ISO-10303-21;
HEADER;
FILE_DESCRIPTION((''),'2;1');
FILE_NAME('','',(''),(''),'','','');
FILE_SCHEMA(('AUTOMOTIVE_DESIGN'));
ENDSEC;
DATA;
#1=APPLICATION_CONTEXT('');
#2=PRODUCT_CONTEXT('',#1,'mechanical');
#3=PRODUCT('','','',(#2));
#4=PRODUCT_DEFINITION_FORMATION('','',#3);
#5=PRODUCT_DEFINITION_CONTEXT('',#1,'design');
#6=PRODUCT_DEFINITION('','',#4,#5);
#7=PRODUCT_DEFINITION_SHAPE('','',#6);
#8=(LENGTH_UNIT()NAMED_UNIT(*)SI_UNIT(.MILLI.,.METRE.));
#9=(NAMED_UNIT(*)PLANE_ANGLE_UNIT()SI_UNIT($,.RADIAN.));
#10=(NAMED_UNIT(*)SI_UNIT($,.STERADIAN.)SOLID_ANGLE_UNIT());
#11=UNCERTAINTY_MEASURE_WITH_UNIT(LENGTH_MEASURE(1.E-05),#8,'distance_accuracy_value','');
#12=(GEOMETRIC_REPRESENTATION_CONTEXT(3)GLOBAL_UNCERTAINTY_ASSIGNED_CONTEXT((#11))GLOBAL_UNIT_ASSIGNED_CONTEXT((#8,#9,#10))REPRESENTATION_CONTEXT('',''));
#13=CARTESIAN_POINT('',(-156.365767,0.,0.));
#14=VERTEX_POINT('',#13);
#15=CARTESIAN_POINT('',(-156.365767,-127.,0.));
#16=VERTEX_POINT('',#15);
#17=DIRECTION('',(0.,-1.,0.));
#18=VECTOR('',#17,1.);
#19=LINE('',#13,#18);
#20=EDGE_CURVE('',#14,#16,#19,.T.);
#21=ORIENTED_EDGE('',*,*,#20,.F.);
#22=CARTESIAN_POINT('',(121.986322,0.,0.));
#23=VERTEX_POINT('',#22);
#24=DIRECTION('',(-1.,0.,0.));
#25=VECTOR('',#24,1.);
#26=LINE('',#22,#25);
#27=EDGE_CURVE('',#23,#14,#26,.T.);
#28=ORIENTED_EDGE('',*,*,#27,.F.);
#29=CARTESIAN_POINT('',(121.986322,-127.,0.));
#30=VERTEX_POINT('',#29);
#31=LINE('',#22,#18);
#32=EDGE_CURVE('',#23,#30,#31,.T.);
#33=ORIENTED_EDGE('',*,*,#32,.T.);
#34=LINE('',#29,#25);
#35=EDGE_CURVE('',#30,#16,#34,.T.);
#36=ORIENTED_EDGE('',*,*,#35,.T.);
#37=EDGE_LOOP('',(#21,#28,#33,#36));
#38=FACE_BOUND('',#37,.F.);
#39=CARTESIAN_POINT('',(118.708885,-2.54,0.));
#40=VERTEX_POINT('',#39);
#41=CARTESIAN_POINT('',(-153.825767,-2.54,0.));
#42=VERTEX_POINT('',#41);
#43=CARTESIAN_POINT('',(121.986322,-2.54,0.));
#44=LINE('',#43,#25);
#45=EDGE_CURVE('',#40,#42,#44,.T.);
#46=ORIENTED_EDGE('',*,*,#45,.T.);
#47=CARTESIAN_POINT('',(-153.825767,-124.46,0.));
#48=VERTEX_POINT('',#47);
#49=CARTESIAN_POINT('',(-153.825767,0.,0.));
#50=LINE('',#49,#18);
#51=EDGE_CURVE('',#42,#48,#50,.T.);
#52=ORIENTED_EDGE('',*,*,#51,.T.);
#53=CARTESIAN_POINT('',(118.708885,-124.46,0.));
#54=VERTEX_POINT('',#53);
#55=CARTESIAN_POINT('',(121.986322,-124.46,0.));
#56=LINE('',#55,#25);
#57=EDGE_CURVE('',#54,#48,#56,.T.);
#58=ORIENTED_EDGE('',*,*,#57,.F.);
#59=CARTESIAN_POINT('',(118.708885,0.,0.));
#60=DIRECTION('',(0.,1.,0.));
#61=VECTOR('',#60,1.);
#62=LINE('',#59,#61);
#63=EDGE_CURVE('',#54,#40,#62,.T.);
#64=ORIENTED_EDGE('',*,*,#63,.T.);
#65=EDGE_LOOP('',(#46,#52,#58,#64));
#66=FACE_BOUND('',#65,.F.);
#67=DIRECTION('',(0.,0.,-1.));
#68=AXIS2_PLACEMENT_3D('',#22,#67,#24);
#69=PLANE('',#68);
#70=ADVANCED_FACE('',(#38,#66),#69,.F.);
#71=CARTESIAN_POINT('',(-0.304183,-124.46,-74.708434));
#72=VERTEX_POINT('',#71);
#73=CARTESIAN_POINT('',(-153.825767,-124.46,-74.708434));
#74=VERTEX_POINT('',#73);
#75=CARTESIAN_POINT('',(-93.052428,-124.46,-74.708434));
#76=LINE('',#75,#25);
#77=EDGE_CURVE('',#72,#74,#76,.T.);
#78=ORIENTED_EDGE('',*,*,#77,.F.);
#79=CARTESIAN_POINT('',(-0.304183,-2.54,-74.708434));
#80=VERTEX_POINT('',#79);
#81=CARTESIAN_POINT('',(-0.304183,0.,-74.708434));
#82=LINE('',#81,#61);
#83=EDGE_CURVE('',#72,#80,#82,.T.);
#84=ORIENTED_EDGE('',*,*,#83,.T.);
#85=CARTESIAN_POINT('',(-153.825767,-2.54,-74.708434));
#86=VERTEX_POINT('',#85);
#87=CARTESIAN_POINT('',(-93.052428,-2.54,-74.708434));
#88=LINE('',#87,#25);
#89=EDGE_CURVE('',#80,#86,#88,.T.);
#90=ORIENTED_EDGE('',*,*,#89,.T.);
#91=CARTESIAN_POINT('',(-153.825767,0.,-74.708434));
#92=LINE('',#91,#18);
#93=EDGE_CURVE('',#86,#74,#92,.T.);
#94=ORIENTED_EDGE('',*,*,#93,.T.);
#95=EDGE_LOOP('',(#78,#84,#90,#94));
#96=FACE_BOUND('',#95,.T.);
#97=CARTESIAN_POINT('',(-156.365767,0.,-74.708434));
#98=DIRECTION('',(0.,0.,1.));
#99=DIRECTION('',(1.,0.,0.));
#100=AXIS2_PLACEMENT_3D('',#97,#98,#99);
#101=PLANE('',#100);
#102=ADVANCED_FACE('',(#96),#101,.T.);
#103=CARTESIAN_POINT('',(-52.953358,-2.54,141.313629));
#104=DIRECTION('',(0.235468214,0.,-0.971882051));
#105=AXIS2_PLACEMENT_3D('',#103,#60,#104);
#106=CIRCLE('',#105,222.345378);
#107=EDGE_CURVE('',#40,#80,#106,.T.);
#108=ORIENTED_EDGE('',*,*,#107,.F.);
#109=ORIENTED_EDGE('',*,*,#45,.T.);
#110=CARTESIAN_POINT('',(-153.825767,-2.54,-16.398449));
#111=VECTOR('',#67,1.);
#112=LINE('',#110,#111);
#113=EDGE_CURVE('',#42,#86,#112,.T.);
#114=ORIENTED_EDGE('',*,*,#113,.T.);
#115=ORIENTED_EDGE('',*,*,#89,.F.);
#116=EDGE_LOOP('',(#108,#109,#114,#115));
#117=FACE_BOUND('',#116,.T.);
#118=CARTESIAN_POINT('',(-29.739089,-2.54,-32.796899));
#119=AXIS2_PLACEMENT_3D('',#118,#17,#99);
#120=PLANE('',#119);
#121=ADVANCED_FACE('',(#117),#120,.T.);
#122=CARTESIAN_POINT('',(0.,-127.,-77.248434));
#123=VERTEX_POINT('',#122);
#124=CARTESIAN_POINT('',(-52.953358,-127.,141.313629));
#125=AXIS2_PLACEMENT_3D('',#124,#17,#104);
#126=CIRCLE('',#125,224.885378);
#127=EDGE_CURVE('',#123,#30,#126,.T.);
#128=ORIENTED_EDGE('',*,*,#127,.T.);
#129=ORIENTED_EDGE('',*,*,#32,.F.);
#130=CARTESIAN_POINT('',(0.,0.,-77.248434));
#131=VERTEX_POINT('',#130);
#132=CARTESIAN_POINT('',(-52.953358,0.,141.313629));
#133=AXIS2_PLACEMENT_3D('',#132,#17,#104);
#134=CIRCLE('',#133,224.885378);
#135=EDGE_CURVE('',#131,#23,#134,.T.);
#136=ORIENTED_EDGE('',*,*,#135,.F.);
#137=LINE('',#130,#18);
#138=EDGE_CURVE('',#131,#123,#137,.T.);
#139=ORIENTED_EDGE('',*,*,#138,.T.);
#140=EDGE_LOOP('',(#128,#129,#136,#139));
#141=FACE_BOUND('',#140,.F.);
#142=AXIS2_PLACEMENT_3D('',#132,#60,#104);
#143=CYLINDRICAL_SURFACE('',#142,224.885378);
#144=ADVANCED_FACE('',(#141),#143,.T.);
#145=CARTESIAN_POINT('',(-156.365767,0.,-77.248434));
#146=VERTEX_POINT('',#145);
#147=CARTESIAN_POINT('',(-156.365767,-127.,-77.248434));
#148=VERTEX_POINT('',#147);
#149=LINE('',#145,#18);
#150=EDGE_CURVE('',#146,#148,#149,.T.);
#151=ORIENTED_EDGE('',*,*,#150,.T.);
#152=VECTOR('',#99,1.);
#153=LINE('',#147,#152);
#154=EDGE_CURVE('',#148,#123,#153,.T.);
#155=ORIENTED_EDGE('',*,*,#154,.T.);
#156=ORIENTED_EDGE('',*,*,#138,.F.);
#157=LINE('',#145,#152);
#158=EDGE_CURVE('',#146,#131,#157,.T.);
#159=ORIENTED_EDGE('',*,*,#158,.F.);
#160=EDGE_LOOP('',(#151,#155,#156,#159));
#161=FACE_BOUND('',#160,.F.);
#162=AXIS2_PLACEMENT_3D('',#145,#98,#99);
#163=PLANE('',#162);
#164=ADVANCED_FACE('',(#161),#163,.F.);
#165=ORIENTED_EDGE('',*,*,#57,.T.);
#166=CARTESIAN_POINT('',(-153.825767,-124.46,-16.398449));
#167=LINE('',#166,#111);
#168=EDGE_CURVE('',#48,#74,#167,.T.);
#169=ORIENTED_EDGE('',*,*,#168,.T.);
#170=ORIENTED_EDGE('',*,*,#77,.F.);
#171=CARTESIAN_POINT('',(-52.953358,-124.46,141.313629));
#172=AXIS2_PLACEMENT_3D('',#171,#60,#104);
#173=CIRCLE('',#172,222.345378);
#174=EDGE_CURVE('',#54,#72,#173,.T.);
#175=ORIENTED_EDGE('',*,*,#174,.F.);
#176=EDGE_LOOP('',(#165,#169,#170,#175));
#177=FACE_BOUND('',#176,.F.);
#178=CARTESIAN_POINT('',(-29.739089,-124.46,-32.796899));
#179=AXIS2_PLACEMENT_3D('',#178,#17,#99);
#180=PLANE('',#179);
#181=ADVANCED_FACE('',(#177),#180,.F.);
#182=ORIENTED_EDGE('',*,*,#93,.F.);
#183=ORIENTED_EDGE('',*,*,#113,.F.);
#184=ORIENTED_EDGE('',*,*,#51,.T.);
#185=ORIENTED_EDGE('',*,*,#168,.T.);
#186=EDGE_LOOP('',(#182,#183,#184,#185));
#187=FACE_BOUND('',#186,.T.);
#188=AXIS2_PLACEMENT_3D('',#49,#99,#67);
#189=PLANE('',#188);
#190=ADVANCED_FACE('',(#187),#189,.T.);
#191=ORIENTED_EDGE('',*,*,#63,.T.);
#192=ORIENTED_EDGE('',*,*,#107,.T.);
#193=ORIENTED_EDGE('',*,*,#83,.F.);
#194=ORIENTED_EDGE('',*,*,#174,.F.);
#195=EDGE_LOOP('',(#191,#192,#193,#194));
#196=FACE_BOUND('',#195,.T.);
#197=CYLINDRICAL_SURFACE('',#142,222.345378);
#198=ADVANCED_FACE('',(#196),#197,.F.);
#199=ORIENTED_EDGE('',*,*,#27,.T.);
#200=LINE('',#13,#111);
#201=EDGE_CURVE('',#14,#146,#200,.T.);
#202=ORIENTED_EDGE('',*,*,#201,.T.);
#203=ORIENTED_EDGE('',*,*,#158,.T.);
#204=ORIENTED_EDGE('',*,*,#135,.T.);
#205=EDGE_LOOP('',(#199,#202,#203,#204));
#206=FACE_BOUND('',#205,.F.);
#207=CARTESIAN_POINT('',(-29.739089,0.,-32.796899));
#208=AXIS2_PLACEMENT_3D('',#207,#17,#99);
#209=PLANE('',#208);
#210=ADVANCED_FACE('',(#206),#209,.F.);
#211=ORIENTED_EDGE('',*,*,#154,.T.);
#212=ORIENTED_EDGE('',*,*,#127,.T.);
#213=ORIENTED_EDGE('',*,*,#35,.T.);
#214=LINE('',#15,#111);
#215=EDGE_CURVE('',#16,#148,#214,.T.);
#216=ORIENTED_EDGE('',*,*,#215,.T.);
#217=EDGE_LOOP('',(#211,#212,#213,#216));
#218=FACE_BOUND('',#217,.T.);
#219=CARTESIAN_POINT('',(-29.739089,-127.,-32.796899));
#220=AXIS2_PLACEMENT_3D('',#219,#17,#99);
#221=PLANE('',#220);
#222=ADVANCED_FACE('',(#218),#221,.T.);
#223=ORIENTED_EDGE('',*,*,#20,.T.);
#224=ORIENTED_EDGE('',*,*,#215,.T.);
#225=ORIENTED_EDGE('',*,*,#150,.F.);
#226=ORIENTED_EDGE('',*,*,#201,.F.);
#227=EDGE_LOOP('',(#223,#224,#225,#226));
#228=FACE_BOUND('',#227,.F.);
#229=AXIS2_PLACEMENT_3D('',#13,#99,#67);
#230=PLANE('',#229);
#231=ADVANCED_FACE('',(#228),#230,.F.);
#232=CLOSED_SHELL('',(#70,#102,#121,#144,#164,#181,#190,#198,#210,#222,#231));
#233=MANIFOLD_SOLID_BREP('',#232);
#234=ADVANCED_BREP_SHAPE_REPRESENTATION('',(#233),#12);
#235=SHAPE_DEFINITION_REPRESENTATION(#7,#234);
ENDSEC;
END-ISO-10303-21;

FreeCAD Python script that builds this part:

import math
import FreeCAD as App
import Part
import Sketcher
Q = App.Units.Quantity


def faces_at(feature, points):
    """Names of the faces that lie closest to the given points."""
    faces = feature.Shape.Faces
    near = lambda p: min(range(len(faces)), key=lambda i: faces[i].distToShape(Part.Vertex(*p))[0])
    return sorted({f"Face{near(p) + 1}" for p in points})

doc = App.newDocument("Part")
body = doc.addObject("PartDesign::Body", "Body")

# Sketch on XZ plane
sketch1 = body.newObject("Sketcher::SketchObject", "Sketch")
sketch1.AttachmentSupport = (doc.getObject("XZ_Plane"), [""])
sketch1.MapMode = "FlatFace"
sketch1.addGeometry([
    Part.LineSegment(App.Vector(122, 0, 0), App.Vector(-156, 0, 0)),
    Part.LineSegment(App.Vector(-156, 0, 0), App.Vector(-156, -77, 0)),
    Part.LineSegment(App.Vector(-156, -77, 0), App.Vector(0, -77, 0)),
    Part.ArcOfCircle(Part.Circle(App.Vector(-53, 141, 0), App.Vector(0, 0, 1), 225), math.radians(-76), math.radians(-39)),
], False)
sketch1.addConstraint([
    Sketcher.Constraint("Coincident", 0, 2, 1, 1),
    Sketcher.Constraint("Coincident", 1, 2, 2, 1),
    Sketcher.Constraint("Coincident", 2, 2, 3, 1),
    Sketcher.Constraint("Coincident", 3, 2, 0, 1),
    Sketcher.Constraint("Horizontal", 0),
    Sketcher.Constraint("Vertical", 1),
    Sketcher.Constraint("Horizontal", 2),
    Sketcher.Constraint("PointOnObject", 0, 2, -1),
    Sketcher.Constraint("PointOnObject", 2, 2, -2),
    Sketcher.Constraint("Radius", 3, 224.885378),
    Sketcher.Constraint("DistanceX", 0, 2, 0, 1, 278.352089),
    Sketcher.Constraint("DistanceX", 2, 1, 2, 2, 156.365767),
    Sketcher.Constraint("DistanceY", 1, 2, 1, 1, 77.248434),
])
pad1 = body.newObject("PartDesign::Pad", "Pad")
pad1.Profile = sketch1
pad1.Length = Q("5 in")
doc.recompute()

thickness = body.newObject("PartDesign::Thickness", "Thickness")
thickness.Base = (pad1, faces_at(pad1, [(-17.19, -63.5, 0)]))
thickness.Value = Q("0.1 in")
thickness.Reversed = True
thickness.Join = "Arc"

doc.recompute()
